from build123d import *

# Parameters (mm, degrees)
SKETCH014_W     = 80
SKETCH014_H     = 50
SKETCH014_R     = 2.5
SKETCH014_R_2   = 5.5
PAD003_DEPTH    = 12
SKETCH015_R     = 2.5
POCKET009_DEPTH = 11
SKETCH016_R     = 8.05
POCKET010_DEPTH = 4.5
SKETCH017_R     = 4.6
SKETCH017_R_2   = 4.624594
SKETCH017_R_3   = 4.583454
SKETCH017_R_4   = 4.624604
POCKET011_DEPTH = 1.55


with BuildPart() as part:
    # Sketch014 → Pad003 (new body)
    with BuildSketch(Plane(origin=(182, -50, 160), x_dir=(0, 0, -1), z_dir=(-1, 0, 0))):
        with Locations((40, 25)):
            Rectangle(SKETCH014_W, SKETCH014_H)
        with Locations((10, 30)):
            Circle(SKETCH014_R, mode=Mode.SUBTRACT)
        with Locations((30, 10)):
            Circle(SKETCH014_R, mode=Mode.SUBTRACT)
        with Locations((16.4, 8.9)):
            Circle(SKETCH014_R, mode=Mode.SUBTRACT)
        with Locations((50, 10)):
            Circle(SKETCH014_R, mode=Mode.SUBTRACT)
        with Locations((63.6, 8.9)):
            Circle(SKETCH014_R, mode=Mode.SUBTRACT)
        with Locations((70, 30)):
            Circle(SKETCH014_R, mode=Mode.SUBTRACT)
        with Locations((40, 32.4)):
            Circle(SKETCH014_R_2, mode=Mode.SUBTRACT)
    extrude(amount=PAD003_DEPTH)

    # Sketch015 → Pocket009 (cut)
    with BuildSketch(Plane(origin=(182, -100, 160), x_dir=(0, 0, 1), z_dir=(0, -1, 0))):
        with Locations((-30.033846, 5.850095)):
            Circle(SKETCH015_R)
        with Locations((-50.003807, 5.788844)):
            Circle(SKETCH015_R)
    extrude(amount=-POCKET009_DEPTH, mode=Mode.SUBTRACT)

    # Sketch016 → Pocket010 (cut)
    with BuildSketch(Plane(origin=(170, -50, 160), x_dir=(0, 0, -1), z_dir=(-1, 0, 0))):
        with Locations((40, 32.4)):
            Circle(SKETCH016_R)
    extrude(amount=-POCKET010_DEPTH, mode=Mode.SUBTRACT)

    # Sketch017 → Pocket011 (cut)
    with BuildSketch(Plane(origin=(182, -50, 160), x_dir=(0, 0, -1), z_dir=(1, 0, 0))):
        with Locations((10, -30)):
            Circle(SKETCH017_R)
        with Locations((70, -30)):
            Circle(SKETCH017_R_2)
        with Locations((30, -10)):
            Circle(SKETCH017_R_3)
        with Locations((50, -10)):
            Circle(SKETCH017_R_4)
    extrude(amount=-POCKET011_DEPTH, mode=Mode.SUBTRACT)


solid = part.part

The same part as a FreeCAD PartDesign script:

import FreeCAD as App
import Part
import Sketcher


def add_polygon(sketch, points):
    """Adds a closed chain of lines whose ends are joined by coincident constraints."""
    first, n = sketch.GeometryCount, len(points)
    for a, b in zip(points, points[1:] + points[:1]):
        sketch.addGeometry(Part.LineSegment(App.Vector(*a, 0), App.Vector(*b, 0)), False)
    for i in range(n):
        sketch.addConstraint(Sketcher.Constraint("Coincident", first + i, 2, first + (i + 1) % n, 1))

doc = App.newDocument("Part")
params = doc.addObject("Spreadsheet::Sheet", "Params")
for row, (alias, value) in enumerate([
    ("sketch1_diameter", "5 mm"),
    ("sketch1_diameter2", "11 mm"),
    ("sketch1_width", "50 mm"),
    ("sketch1_height", "80 mm"),
    ("pad1_length", "12 mm"),
    ("sketch2_diameter", "5 mm"),
    ("pocket1_length", "11 mm"),
    ("sketch3_diameter", "16.1 mm"),
    ("pocket2_length", "4.5 mm"),
    ("sketch4_diameter", "9.2 mm"),
    ("pocket3_length", "1.55 mm"),
], start=1):
    params.set(f"A{row}", alias)
    params.set(f"B{row}", "=" + value)
    params.setAlias(f"B{row}", alias)

body = doc.addObject("PartDesign::Body", "Body")

# Sketch on YZ plane
sketch1 = body.newObject("Sketcher::SketchObject", "Sketch")
sketch1.AttachmentSupport = (doc.getObject("YZ_Plane"), [""])
sketch1.MapMode = "FlatFace"
sketch1.AttachmentOffset = App.Placement(App.Vector(0, 0, 182), App.Rotation())
add_polygon(sketch1, [(-100, 160), (-50, 160), (-50, 80), (-100, 80)])  # lines 0-3
sketch1.addGeometry(Part.Circle(App.Vector(-58.9, 143.6, 0), App.Vector(0, 0, 1), 2.5), False)  # 4
sketch1.addGeometry(Part.Circle(App.Vector(-60, 130, 0), App.Vector(0, 0, 1), 2.5), False)  # 5
sketch1.addGeometry(Part.Circle(App.Vector(-60, 110, 0), App.Vector(0, 0, 1), 2.5), False)  # 6
sketch1.addGeometry(Part.Circle(App.Vector(-58.9, 96.4, 0), App.Vector(0, 0, 1), 2.5), False)  # 7
sketch1.addGeometry(Part.Circle(App.Vector(-80, 150, 0), App.Vector(0, 0, 1), 2.5), False)  # 8
sketch1.addGeometry(Part.Circle(App.Vector(-80, 90, 0), App.Vector(0, 0, 1), 2.5), False)  # 9
sketch1.addGeometry(Part.Circle(App.Vector(-82.4, 120, 0), App.Vector(0, 0, 1), 5.5), False)  # 10
sketch1.addConstraint([
    Sketcher.Constraint("Horizontal", 0),
    Sketcher.Constraint("Vertical", 1),
    Sketcher.Constraint("Horizontal", 2),
    Sketcher.Constraint("Vertical", 3),
    Sketcher.Constraint("Equal", 4, 5),
    Sketcher.Constraint("Equal", 5, 6),
    Sketcher.Constraint("Equal", 6, 7),
    Sketcher.Constraint("Equal", 7, 8),
    Sketcher.Constraint("Equal", 8, 9),
    Sketcher.Constraint("Vertical", 5, 3, 6, 3),
    Sketcher.Constraint("Vertical", 4, 3, 7, 3),
    Sketcher.Constraint("Vertical", 8, 3, 9, 3),
    Sketcher.Constraint("Diameter", 4, 5.0),
    Sketcher.Constraint("Diameter", 10, 11.0),
    Sketcher.Constraint("DistanceX", 0, 1, 0, 2, 50.0),
    Sketcher.Constraint("DistanceY", 1, 2, 1, 1, 80.0),
    Sketcher.Constraint("DistanceX", 5, 3, -1, 1, 60.0),
    Sketcher.Constraint("DistanceY", -1, 1, 5, 3, 130.0),
    Sketcher.Constraint("DistanceY", -1, 1, 6, 3, 110.0),
    Sketcher.Constraint("DistanceX", 8, 3, -1, 1, 80.0),
    Sketcher.Constraint("DistanceY", -1, 1, 8, 3, 150.0),
    Sketcher.Constraint("DistanceY", -1, 1, 9, 3, 90.0),
    Sketcher.Constraint("DistanceY", -1, 1, 10, 3, 120.0),
    Sketcher.Constraint("DistanceX", 0, 2, -1, 1, 50.0),
    Sketcher.Constraint("DistanceY", -1, 1, 0, 2, 160.0),
    Sketcher.Constraint("DistanceX", 4, 3, -1, 1, 58.9),
    Sketcher.Constraint("DistanceY", -1, 1, 4, 3, 143.6),
    Sketcher.Constraint("DistanceY", -1, 1, 7, 3, 96.4),
    Sketcher.Constraint("DistanceX", 10, 3, -1, 1, 82.4),
])
sketch1.setExpression("Constraints[16]", "Params.sketch1_diameter")
sketch1.setExpression("Constraints[17]", "Params.sketch1_diameter2")
sketch1.setExpression("Constraints[18]", "Params.sketch1_width")
sketch1.setExpression("Constraints[19]", "Params.sketch1_height")
pad1 = body.newObject("PartDesign::Pad", "Pad")
pad1.Profile = sketch1
pad1.setExpression("Length", "Params.pad1_length")
pad1.Reversed = True

# Sketch on XZ plane
sketch2 = body.newObject("Sketcher::SketchObject", "Sketch001")
sketch2.AttachmentSupport = (doc.getObject("XZ_Plane"), [""])
sketch2.MapMode = "FlatFace"
sketch2.AttachmentOffset = App.Placement(App.Vector(0, 0, 100), App.Rotation())
sketch2.addGeometry([
    Part.Circle(App.Vector(176.1, 130, 0), App.Vector(0, 0, 1), 2.5),
    Part.Circle(App.Vector(176.2, 110, 0), App.Vector(0, 0, 1), 2.5),
], False)
sketch2.addConstraint([
    Sketcher.Constraint("Equal", 0, 1),
    Sketcher.Constraint("Diameter", 0, 5.0),
    Sketcher.Constraint("DistanceX", 0, 3, 1, 3, 0.061251),
    Sketcher.Constraint("DistanceY", 1, 3, 0, 3, 19.969961),
    Sketcher.Constraint("DistanceX", -1, 1, 0, 3, 176.149905),
    Sketcher.Constraint("DistanceY", -1, 1, 0, 3, 129.966154),
])
sketch2.setExpression("Constraints[1]", "Params.sketch2_diameter")
pocket1 = body.newObject("PartDesign::Pocket", "Pocket")
pocket1.Profile = sketch2
pocket1.setExpression("Length", "Params.pocket1_length")

# Sketch on YZ plane
sketch3 = body.newObject("Sketcher::SketchObject", "Sketch002")
sketch3.AttachmentSupport = (doc.getObject("YZ_Plane"), [""])
sketch3.MapMode = "FlatFace"
sketch3.AttachmentOffset = App.Placement(App.Vector(0, 0, 170), App.Rotation())
sketch3.addGeometry(Part.Circle(App.Vector(-82, 120, 0), App.Vector(0, 0, 1), 8), False)
sketch3.addConstraint([
    Sketcher.Constraint("Diameter", 0, 16.1),
    Sketcher.Constraint("DistanceY", -1, 1, 0, 3, 120.0),
    Sketcher.Constraint("DistanceX", 0, 3, -1, 1, 82.4),
])
sketch3.setExpression("Constraints[0]", "Params.sketch3_diameter")
pocket2 = body.newObject("PartDesign::Pocket", "Pocket001")
pocket2.Profile = sketch3
pocket2.setExpression("Length", "Params.pocket2_length")
pocket2.Reversed = True

# Sketch on YZ plane
sketch4 = body.newObject("Sketcher::SketchObject", "Sketch003")
sketch4.AttachmentSupport = (doc.getObject("YZ_Plane"), [""])
sketch4.MapMode = "FlatFace"
sketch4.AttachmentOffset = App.Placement(App.Vector(0, 0, 182), App.Rotation())
sketch4.addGeometry([
    Part.Circle(App.Vector(-80, 150, 0), App.Vector(0, 0, 1), 4.6),
    Part.Circle(App.Vector(-80, 90, 0), App.Vector(0, 0, 1), 4.6),
    Part.Circle(App.Vector(-60, 130, 0), App.Vector(0, 0, 1), 4.6),
    Part.Circle(App.Vector(-60, 110, 0), App.Vector(0, 0, 1), 4.6),
], False)
sketch4.addConstraint([
    Sketcher.Constraint("Vertical", 0, 3, 1, 3),
    Sketcher.Constraint("Vertical", 2, 3, 3, 3),
    Sketcher.Constraint("Diameter", 0, 9.2),
    Sketcher.Constraint("DistanceX", 0, 3, -1, 1, 80.0),
    Sketcher.Constraint("DistanceY", -1, 1, 0, 3, 150.0),
    Sketcher.Constraint("DistanceY", -1, 1, 1, 3, 90.0),
    Sketcher.Constraint("DistanceX", 2, 3, -1, 1, 60.0),
    Sketcher.Constraint("DistanceY", -1, 1, 2, 3, 130.0),
    Sketcher.Constraint("DistanceY", -1, 1, 3, 3, 110.0),
    Sketcher.Constraint("Diameter", 1, 9.249188),
    Sketcher.Constraint("Diameter", 2, 9.166908),
    Sketcher.Constraint("Diameter", 3, 9.249208),
])
sketch4.setExpression("Constraints[2]", "Params.sketch4_diameter")
pocket3 = body.newObject("PartDesign::Pocket", "Pocket002")
pocket3.Profile = sketch4
pocket3.setExpression("Length", "Params.pocket3_length")

doc.recompute()
